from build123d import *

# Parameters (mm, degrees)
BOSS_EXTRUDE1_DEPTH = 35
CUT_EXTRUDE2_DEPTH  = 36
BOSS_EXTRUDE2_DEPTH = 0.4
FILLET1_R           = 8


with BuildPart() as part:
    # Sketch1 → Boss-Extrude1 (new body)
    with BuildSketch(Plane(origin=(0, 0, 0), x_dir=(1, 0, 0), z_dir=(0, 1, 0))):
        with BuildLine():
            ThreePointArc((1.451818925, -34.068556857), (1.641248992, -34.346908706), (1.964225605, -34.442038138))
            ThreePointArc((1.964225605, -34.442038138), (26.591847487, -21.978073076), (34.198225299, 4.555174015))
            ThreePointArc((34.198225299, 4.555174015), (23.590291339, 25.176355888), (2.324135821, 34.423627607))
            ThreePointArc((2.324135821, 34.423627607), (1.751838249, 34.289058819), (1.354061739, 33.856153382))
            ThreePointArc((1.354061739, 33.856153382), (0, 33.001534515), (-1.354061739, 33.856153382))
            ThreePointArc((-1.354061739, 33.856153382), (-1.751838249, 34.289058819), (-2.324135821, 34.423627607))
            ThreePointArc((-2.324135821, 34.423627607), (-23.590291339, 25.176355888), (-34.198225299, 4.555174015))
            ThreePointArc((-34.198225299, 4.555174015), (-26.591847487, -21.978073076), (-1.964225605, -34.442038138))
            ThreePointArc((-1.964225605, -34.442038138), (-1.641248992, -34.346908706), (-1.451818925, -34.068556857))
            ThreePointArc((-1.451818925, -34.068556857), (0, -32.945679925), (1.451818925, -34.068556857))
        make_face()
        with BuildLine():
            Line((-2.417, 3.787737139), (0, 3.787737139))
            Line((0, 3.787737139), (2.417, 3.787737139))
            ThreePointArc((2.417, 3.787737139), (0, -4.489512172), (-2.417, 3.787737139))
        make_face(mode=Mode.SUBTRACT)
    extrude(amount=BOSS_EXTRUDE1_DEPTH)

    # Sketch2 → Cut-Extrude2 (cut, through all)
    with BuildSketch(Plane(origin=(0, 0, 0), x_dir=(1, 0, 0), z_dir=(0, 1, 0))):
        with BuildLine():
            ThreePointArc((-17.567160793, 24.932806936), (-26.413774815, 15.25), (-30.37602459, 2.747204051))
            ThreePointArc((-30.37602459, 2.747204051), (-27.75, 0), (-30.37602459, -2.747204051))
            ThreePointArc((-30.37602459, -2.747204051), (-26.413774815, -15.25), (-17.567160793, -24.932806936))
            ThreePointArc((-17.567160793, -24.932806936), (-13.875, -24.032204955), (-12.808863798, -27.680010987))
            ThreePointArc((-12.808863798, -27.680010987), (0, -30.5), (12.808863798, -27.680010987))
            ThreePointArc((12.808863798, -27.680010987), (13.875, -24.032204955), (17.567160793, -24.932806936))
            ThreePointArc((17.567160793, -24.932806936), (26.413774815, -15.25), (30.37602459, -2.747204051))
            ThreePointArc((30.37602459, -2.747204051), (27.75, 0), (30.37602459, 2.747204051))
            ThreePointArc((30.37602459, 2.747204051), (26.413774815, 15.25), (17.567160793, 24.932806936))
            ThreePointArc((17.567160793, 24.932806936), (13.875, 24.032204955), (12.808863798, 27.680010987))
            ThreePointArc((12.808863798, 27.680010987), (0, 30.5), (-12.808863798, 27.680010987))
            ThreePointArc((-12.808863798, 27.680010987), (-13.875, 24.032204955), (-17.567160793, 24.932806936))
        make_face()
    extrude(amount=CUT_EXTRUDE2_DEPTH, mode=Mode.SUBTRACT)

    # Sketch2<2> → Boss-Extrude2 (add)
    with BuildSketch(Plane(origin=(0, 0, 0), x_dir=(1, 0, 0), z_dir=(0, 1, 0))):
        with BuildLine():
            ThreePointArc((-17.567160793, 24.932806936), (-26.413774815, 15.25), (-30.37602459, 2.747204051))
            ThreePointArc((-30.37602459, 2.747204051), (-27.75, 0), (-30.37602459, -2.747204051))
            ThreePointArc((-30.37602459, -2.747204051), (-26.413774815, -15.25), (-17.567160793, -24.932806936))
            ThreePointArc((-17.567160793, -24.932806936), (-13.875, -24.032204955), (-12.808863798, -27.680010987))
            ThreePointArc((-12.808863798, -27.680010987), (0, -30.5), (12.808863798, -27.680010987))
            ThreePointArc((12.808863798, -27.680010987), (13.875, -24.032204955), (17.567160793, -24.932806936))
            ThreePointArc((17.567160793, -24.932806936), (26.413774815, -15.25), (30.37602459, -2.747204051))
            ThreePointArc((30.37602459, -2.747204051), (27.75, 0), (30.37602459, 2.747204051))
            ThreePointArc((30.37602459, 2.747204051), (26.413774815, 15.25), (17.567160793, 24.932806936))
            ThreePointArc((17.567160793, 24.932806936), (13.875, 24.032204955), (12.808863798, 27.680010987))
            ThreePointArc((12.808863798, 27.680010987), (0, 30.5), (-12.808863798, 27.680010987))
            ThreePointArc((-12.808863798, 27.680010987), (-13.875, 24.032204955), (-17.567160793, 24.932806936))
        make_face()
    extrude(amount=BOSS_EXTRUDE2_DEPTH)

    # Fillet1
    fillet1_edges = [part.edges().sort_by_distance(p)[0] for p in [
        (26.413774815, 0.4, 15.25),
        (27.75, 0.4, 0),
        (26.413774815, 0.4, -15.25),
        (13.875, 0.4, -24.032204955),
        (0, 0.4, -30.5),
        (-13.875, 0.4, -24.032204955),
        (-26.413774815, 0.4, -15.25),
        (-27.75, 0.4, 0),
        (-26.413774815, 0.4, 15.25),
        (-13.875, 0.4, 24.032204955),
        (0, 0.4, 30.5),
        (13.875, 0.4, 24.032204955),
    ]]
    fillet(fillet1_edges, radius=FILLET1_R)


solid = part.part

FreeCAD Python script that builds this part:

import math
import FreeCAD as App
import Part
import Sketcher

V = App.Vector


def edges_at(feature, points):
    """Names of the edges that pass closest to the given points."""
    edges = feature.Shape.Edges
    near = lambda p: min(range(len(edges)), key=lambda i: edges[i].distToShape(Part.Vertex(*p))[0])
    return sorted({f"Edge{near(p) + 1}" for p in points})

doc = App.newDocument("Part")
body = doc.addObject("PartDesign::Body", "Body")

# Sketch on XZ plane
sketch1 = body.newObject("Sketcher::SketchObject", "Sketch")
sketch1.AttachmentSupport = (doc.getObject("XZ_Plane"), [""])
sketch1.MapMode = "FlatFace"
sketch1.addGeometry([
    Part.ArcOfCircle(Part.Circle(V(1.9, 33.9, 0), V(0, 0, 1), 0.5), math.radians(87), math.radians(165)),  # 0
    Part.ArcOfCircle(Part.Circle(V(0, 0, 0), V(0, 0, 1), 34.5), math.radians(-8), math.radians(87)),  # 1
    Part.ArcOfCircle(Part.Circle(V(0, 0, 0), V(0, 0, 1), 34.5), math.radians(-86), math.radians(-8)),  # 2
    Part.ArcOfCircle(Part.Circle(V(2.3, -33.4, 0), V(0, 0, 1), 1), math.radians(-155), math.radians(-86)),  # 3
    Part.ArcOfCircle(Part.Circle(V(0, -34.5, 0), V(0, 0, 1), 1.5), math.radians(25), math.radians(155)),  # 4
    Part.ArcOfCircle(Part.Circle(V(-2.3, -33.4, 0), V(0, 0, 1), 1), math.radians(-94), math.radians(-25)),  # 5
    Part.ArcOfCircle(Part.Circle(V(0, 0, 0), V(0, 0, 1), 34.5), math.radians(-172), math.radians(-94)),  # 6
    Part.ArcOfCircle(Part.Circle(V(0, 0, 0), V(0, 0, 1), 34.5), math.radians(93), math.radians(188)),  # 7
    Part.ArcOfCircle(Part.Circle(V(-1.9, 33.9, 0), V(0, 0, 1), 0.5), math.radians(15), math.radians(93)),  # 8
    Part.ArcOfCircle(Part.Circle(V(0, 34.4, 0), V(0, 0, 1), 1.5), math.radians(-165), math.radians(-15)),  # 9
    Part.ArcOfCircle(Part.Circle(V(0, 0, 0), V(0, 0, 1), 4.5), math.radians(-57), math.radians(237)),  # 10
    Part.LineSegment(V(-2.4, -3.8, 0), V(2.4, -3.8, 0)),  # 11
], False)
sketch1.addConstraint([
    Sketcher.Constraint("Tangent", 0, 1, 1, 2),
    Sketcher.Constraint("Tangent", 1, 1, 2, 2),
    Sketcher.Constraint("Tangent", 2, 1, 3, 2),
    Sketcher.Constraint("Tangent", 3, 1, 4, 1),
    Sketcher.Constraint("Tangent", 4, 2, 5, 2),
    Sketcher.Constraint("Tangent", 5, 1, 6, 2),
    Sketcher.Constraint("Tangent", 6, 1, 7, 2),
    Sketcher.Constraint("Tangent", 7, 1, 8, 2),
    Sketcher.Constraint("Tangent", 8, 1, 9, 1),
    Sketcher.Constraint("Tangent", 9, 2, 0, 2),
    Sketcher.Constraint("Coincident", 10, 1, 11, 2),
    Sketcher.Constraint("Coincident", 11, 1, 10, 2),
    Sketcher.Constraint("Horizontal", 11),
    Sketcher.Constraint("Coincident", 6, 3, 1, 3),
    Sketcher.Constraint("Coincident", 10, 3, 1, 3),
    Sketcher.Constraint("Equal", 1, 2),
    Sketcher.Constraint("Equal", 3, 5),
    Sketcher.Constraint("Equal", 2, 6),
    Sketcher.Constraint("Equal", 6, 7),
    Sketcher.Constraint("Equal", 0, 8),
    Sketcher.Constraint("Equal", 4, 9),
    Sketcher.Constraint("Symmetric", 3, 3, 5, 3, -2),
    Sketcher.Constraint("PointOnObject", 9, 3, -2),
    Sketcher.Constraint("Horizontal", 1, 1, 6, 1),
    Sketcher.Constraint("Radius", 3, 1.0),
    Sketcher.Constraint("Radius", 0, 0.5),
    Sketcher.Constraint("Radius", 1, 34.5),
    Sketcher.Constraint("Radius", 4, 1.5),
    Sketcher.Constraint("DistanceX", 11, 1, 11, 2, 4.834),
    Sketcher.Constraint("DistanceY", 1, 3, -1, 1, 0.002001),
    Sketcher.Constraint("Radius", 10, 4.491513),
    Sketcher.Constraint("DistanceY", 3, 3, -1, 1, 33.425899),
    Sketcher.Constraint("DistanceX", -1, 1, 0, 3, 1.935759),
    Sketcher.Constraint("DistanceX", -1, 1, 1, 1, 34.198225),
])
pad1 = body.newObject("PartDesign::Pad", "Pad")
pad1.Profile = sketch1
pad1.Length = 35
pad1.Reversed = True

# Sketch on XZ plane
sketch2 = body.newObject("Sketcher::SketchObject", "Sketch001")
sketch2.AttachmentSupport = (doc.getObject("XZ_Plane"), [""])
sketch2.MapMode = "FlatFace"
sketch2.addGeometry([
    Part.ArcOfCircle(Part.Circle(V(0, 0, 0), V(0, 0, 1), 30.5), math.radians(-175), math.radians(-125)),  # 0
    Part.ArcOfCircle(Part.Circle(V(-30.5, 0, 0), V(0, 0, 1), 2.8), math.radians(-87), math.radians(87)),  # 1
    Part.ArcOfCircle(Part.Circle(V(0, 0, 0), V(0, 0, 1), 30.5), math.radians(125), math.radians(175)),  # 2
    Part.ArcOfCircle(Part.Circle(V(-15.2, 26.4, 0), V(0, 0, 1), 2.8), math.radians(-147), math.radians(27)),  # 3
    Part.ArcOfCircle(Part.Circle(V(0, 0, 0), V(0, 0, 1), 30.5), math.radians(65), math.radians(115)),  # 4
    Part.ArcOfCircle(Part.Circle(V(15.2, 26.4, 0), V(0, 0, 1), 2.8), math.radians(153), math.radians(327)),  # 5
    Part.ArcOfCircle(Part.Circle(V(0, 0, 0), V(0, 0, 1), 30.5), math.radians(5), math.radians(55)),  # 6
    Part.ArcOfCircle(Part.Circle(V(30.5, 0, 0), V(0, 0, 1), 2.8), math.radians(93), math.radians(267)),  # 7
    Part.ArcOfCircle(Part.Circle(V(0, 0, 0), V(0, 0, 1), 30.5), math.radians(-55), math.radians(-5)),  # 8
    Part.ArcOfCircle(Part.Circle(V(15.2, -26.4, 0), V(0, 0, 1), 2.8), math.radians(33), math.radians(207)),  # 9
    Part.ArcOfCircle(Part.Circle(V(0, 0, 0), V(0, 0, 1), 30.5), math.radians(-115), math.radians(-65)),  # 10
    Part.ArcOfCircle(Part.Circle(V(-15.2, -26.4, 0), V(0, 0, 1), 2.8), math.radians(-27), math.radians(147)),  # 11
], False)
sketch2.addConstraint([
    Sketcher.Constraint("Coincident", 0, 1, 1, 1),
    Sketcher.Constraint("Coincident", 1, 2, 2, 2),
    Sketcher.Constraint("Coincident", 2, 1, 3, 1),
    Sketcher.Constraint("Coincident", 3, 2, 4, 2),
    Sketcher.Constraint("Coincident", 4, 1, 5, 1),
    Sketcher.Constraint("Coincident", 5, 2, 6, 2),
    Sketcher.Constraint("Coincident", 6, 1, 7, 1),
    Sketcher.Constraint("Coincident", 7, 2, 8, 2),
    Sketcher.Constraint("Coincident", 8, 1, 9, 1),
    Sketcher.Constraint("Coincident", 9, 2, 10, 2),
    Sketcher.Constraint("Coincident", 10, 1, 11, 1),
    Sketcher.Constraint("Coincident", 11, 2, 0, 2),
    Sketcher.Constraint("Coincident", 0, 3, -1, 1),
    Sketcher.Constraint("Coincident", 2, 3, -1, 1),
    Sketcher.Constraint("Coincident", 4, 3, -1, 1),
    Sketcher.Constraint("Coincident", 6, 3, -1, 1),
    Sketcher.Constraint("Coincident", 8, 3, -1, 1),
    Sketcher.Constraint("Coincident", 10, 3, -1, 1),
    Sketcher.Constraint("Equal", 0, 2),
    Sketcher.Constraint("Equal", 1, 3),
    Sketcher.Constraint("Equal", 2, 4),
    Sketcher.Constraint("Equal", 3, 5),
    Sketcher.Constraint("Equal", 4, 6),
    Sketcher.Constraint("Equal", 5, 7),
    Sketcher.Constraint("Equal", 6, 8),
    Sketcher.Constraint("Equal", 7, 9),
    Sketcher.Constraint("Equal", 8, 10),
    Sketcher.Constraint("Equal", 9, 11),
    Sketcher.Constraint("Symmetric", 1, 3, 7, 3, -1, 1),
    Sketcher.Constraint("Symmetric", 3, 3, 9, 3, -1, 1),
    Sketcher.Constraint("Symmetric", 5, 3, 11, 3, -1, 1),
    Sketcher.Constraint("Symmetric", 3, 3, 5, 3, -2),
    Sketcher.Constraint("PointOnObject", 1, 3, -1),
    Sketcher.Constraint("Radius", 0, 30.5),
    Sketcher.Constraint("Radius", 1, 2.75),
    Sketcher.Constraint("DistanceX", 1, 3, -1, 1, 30.5),
    Sketcher.Constraint("DistanceX", 3, 3, 5, 3, 30.5),
    Sketcher.Constraint("DistanceX", 2, 1, -1, 1, 17.567161),
])
pocket1 = body.newObject("PartDesign::Pocket", "Pocket")
pocket1.Profile = sketch2
pocket1.Type = "ThroughAll"

# Sketch on XZ plane
sketch3 = body.newObject("Sketcher::SketchObject", "Sketch002")
sketch3.AttachmentSupport = (doc.getObject("XZ_Plane"), [""])
sketch3.MapMode = "FlatFace"
sketch3.addGeometry([
    Part.ArcOfCircle(Part.Circle(V(0, 0, 0), V(0, 0, 1), 30.5), math.radians(-175), math.radians(-125)),  # 0
    Part.ArcOfCircle(Part.Circle(V(-30.5, 0, 0), V(0, 0, 1), 2.8), math.radians(-87), math.radians(87)),  # 1
    Part.ArcOfCircle(Part.Circle(V(0, 0, 0), V(0, 0, 1), 30.5), math.radians(125), math.radians(175)),  # 2
    Part.ArcOfCircle(Part.Circle(V(-15.2, 26.4, 0), V(0, 0, 1), 2.8), math.radians(-147), math.radians(27)),  # 3
    Part.ArcOfCircle(Part.Circle(V(0, 0, 0), V(0, 0, 1), 30.5), math.radians(65), math.radians(115)),  # 4
    Part.ArcOfCircle(Part.Circle(V(15.2, 26.4, 0), V(0, 0, 1), 2.8), math.radians(153), math.radians(327)),  # 5
    Part.ArcOfCircle(Part.Circle(V(0, 0, 0), V(0, 0, 1), 30.5), math.radians(5), math.radians(55)),  # 6
    Part.ArcOfCircle(Part.Circle(V(30.5, 0, 0), V(0, 0, 1), 2.8), math.radians(93), math.radians(267)),  # 7
    Part.ArcOfCircle(Part.Circle(V(0, 0, 0), V(0, 0, 1), 30.5), math.radians(-55), math.radians(-5)),  # 8
    Part.ArcOfCircle(Part.Circle(V(15.2, -26.4, 0), V(0, 0, 1), 2.8), math.radians(33), math.radians(207)),  # 9
    Part.ArcOfCircle(Part.Circle(V(0, 0, 0), V(0, 0, 1), 30.5), math.radians(-115), math.radians(-65)),  # 10
    Part.ArcOfCircle(Part.Circle(V(-15.2, -26.4, 0), V(0, 0, 1), 2.8), math.radians(-27), math.radians(147)),  # 11
], False)
sketch3.addConstraint([
    Sketcher.Constraint("Coincident", 0, 1, 1, 1),
    Sketcher.Constraint("Coincident", 1, 2, 2, 2),
    Sketcher.Constraint("Coincident", 2, 1, 3, 1),
    Sketcher.Constraint("Coincident", 3, 2, 4, 2),
    Sketcher.Constraint("Coincident", 4, 1, 5, 1),
    Sketcher.Constraint("Coincident", 5, 2, 6, 2),
    Sketcher.Constraint("Coincident", 6, 1, 7, 1),
    Sketcher.Constraint("Coincident", 7, 2, 8, 2),
    Sketcher.Constraint("Coincident", 8, 1, 9, 1),
    Sketcher.Constraint("Coincident", 9, 2, 10, 2),
    Sketcher.Constraint("Coincident", 10, 1, 11, 1),
    Sketcher.Constraint("Coincident", 11, 2, 0, 2),
    Sketcher.Constraint("Coincident", 0, 3, -1, 1),
    Sketcher.Constraint("Coincident", 2, 3, -1, 1),
    Sketcher.Constraint("Coincident", 4, 3, -1, 1),
    Sketcher.Constraint("Coincident", 6, 3, -1, 1),
    Sketcher.Constraint("Coincident", 8, 3, -1, 1),
    Sketcher.Constraint("Coincident", 10, 3, -1, 1),
    Sketcher.Constraint("Equal", 0, 2),
    Sketcher.Constraint("Equal", 1, 3),
    Sketcher.Constraint("Equal", 2, 4),
    Sketcher.Constraint("Equal", 3, 5),
    Sketcher.Constraint("Equal", 4, 6),
    Sketcher.Constraint("Equal", 5, 7),
    Sketcher.Constraint("Equal", 6, 8),
    Sketcher.Constraint("Equal", 7, 9),
    Sketcher.Constraint("Equal", 8, 10),
    Sketcher.Constraint("Equal", 9, 11),
    Sketcher.Constraint("Symmetric", 1, 3, 7, 3, -1, 1),
    Sketcher.Constraint("Symmetric", 3, 3, 9, 3, -1, 1),
    Sketcher.Constraint("Symmetric", 5, 3, 11, 3, -1, 1),
    Sketcher.Constraint("Symmetric", 3, 3, 5, 3, -2),
    Sketcher.Constraint("PointOnObject", 1, 3, -1),
    Sketcher.Constraint("Radius", 0, 30.5),
    Sketcher.Constraint("Radius", 1, 2.75),
    Sketcher.Constraint("DistanceX", 1, 3, -1, 1, 30.5),
    Sketcher.Constraint("DistanceX", 3, 3, 5, 3, 30.5),
    Sketcher.Constraint("DistanceX", 2, 1, -1, 1, 17.567161),
])
pad2 = body.newObject("PartDesign::Pad", "Pad001")
pad2.Profile = sketch3
pad2.Length = 0.4
pad2.Reversed = True
doc.recompute()

fillet = body.newObject("PartDesign::Fillet", "Fillet")
fillet.Base = (pad2, edges_at(pad2, [
    (26.414, 0.4, 15.25),
    (27.75, 0.4, 0),
    (26.414, 0.4, -15.25),
    (13.875, 0.4, -24.032),
    (0, 0.4, -30.5),
    (-13.875, 0.4, -24.032),
    (-26.414, 0.4, -15.25),
    (-27.75, 0.4, 0),
    (-26.414, 0.4, 15.25),
    (-13.875, 0.4, 24.032),
    (0, 0.4, 30.5),
    (13.875, 0.4, 24.032),
]))
fillet.Radius = 8

doc.recompute()
